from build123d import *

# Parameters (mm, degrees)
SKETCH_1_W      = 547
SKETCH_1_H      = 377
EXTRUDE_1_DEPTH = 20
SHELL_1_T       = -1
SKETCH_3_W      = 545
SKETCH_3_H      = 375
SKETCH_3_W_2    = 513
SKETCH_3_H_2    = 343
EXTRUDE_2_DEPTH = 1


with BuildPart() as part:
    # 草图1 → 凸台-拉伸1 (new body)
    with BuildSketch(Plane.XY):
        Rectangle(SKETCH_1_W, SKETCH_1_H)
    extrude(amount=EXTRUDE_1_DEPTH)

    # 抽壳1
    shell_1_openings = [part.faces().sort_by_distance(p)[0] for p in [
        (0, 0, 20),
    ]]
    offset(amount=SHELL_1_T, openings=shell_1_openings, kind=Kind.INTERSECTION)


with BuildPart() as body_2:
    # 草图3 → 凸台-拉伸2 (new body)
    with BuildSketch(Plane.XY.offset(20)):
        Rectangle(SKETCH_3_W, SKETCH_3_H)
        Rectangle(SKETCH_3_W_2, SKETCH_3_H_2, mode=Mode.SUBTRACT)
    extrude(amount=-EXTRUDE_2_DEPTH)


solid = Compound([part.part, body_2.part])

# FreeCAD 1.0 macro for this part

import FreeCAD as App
import Part
import Sketcher


def faces_at(feature, points):
    """Names of the faces that lie closest to the given points."""
    faces = feature.Shape.Faces
    near = lambda p: min(range(len(faces)), key=lambda i: faces[i].distToShape(Part.Vertex(*p))[0])
    return sorted({f"Face{near(p) + 1}" for p in points})

doc = App.newDocument("Part")
body = doc.addObject("PartDesign::Body", "Body")

# Sketch on XY plane
sketch1 = body.newObject("Sketcher::SketchObject", "Sketch")
sketch1.AttachmentSupport = (doc.getObject("XY_Plane"), [""])
sketch1.MapMode = "FlatFace"
sketch1.addGeometry(Part.LineSegment(App.Vector(-274, 188, 0), App.Vector(-274, -188, 0)), False)
sketch1.addGeometry(Part.LineSegment(App.Vector(-274, -188, 0), App.Vector(274, -188, 0)), False)
sketch1.addGeometry(Part.LineSegment(App.Vector(274, -188, 0), App.Vector(274, 188, 0)), False)
sketch1.addGeometry(Part.LineSegment(App.Vector(274, 188, 0), App.Vector(-274, 188, 0)), False)
sketch1.addConstraint(Sketcher.Constraint("Coincident", 0, 2, 1, 1))
sketch1.addConstraint(Sketcher.Constraint("Coincident", 1, 2, 2, 1))
sketch1.addConstraint(Sketcher.Constraint("Coincident", 2, 2, 3, 1))
sketch1.addConstraint(Sketcher.Constraint("Coincident", 3, 2, 0, 1))
sketch1.addConstraint(Sketcher.Constraint("Vertical", 0))
sketch1.addConstraint(Sketcher.Constraint("Horizontal", 1))
sketch1.addConstraint(Sketcher.Constraint("Vertical", 2))
sketch1.addConstraint(Sketcher.Constraint("Horizontal", 3))
sketch1.addConstraint(Sketcher.Constraint("Symmetric", 0, 2, 2, 2, -1, 1))
sketch1.addConstraint(Sketcher.Constraint("DistanceX", 1, 1, 1, 2, 547.0))
sketch1.addConstraint(Sketcher.Constraint("DistanceY", 0, 2, 0, 1, 377.0))
pad1 = body.newObject("PartDesign::Pad", "Pad")
pad1.Profile = sketch1
pad1.Length = 20
doc.recompute()

thickness = body.newObject("PartDesign::Thickness", "Thickness")
thickness.Base = (pad1, faces_at(pad1, [(0, 0, 20)]))
thickness.Value = 1
thickness.Reversed = True
thickness.Join = "Intersection"
body2 = doc.addObject("PartDesign::Body", "Body001")

# Sketch on XY plane
sketch2 = body2.newObject("Sketcher::SketchObject", "Sketch001")
sketch2.AttachmentSupport = (doc.getObject("XY_Plane001"), [""])
sketch2.MapMode = "FlatFace"
sketch2.AttachmentOffset = App.Placement(App.Vector(0, 0, 20), App.Rotation())
sketch2.addGeometry(Part.LineSegment(App.Vector(-272, 188, 0), App.Vector(-272, -188, 0)), False)
sketch2.addGeometry(Part.LineSegment(App.Vector(-272, -188, 0), App.Vector(272, -188, 0)), False)
sketch2.addGeometry(Part.LineSegment(App.Vector(272, -188, 0), App.Vector(272, 188, 0)), False)
sketch2.addGeometry(Part.LineSegment(App.Vector(272, 188, 0), App.Vector(-272, 188, 0)), False)
sketch2.addGeometry(Part.LineSegment(App.Vector(256, -172, 0), App.Vector(-256, -172, 0)), False)
sketch2.addGeometry(Part.LineSegment(App.Vector(-256, -172, 0), App.Vector(-256, 172, 0)), False)
sketch2.addGeometry(Part.LineSegment(App.Vector(-256, 172, 0), App.Vector(256, 172, 0)), False)
sketch2.addGeometry(Part.LineSegment(App.Vector(256, 172, 0), App.Vector(256, -172, 0)), False)
sketch2.addConstraint(Sketcher.Constraint("Coincident", 0, 2, 1, 1))
sketch2.addConstraint(Sketcher.Constraint("Coincident", 1, 2, 2, 1))
sketch2.addConstraint(Sketcher.Constraint("Coincident", 2, 2, 3, 1))
sketch2.addConstraint(Sketcher.Constraint("Coincident", 3, 2, 0, 1))
sketch2.addConstraint(Sketcher.Constraint("Coincident", 4, 2, 5, 1))
sketch2.addConstraint(Sketcher.Constraint("Coincident", 5, 2, 6, 1))
sketch2.addConstraint(Sketcher.Constraint("Coincident", 6, 2, 7, 1))
sketch2.addConstraint(Sketcher.Constraint("Coincident", 7, 2, 4, 1))
sketch2.addConstraint(Sketcher.Constraint("Vertical", 0))
sketch2.addConstraint(Sketcher.Constraint("Horizontal", 1))
sketch2.addConstraint(Sketcher.Constraint("Vertical", 2))
sketch2.addConstraint(Sketcher.Constraint("Horizontal", 3))
sketch2.addConstraint(Sketcher.Constraint("Horizontal", 4))
sketch2.addConstraint(Sketcher.Constraint("Vertical", 5))
sketch2.addConstraint(Sketcher.Constraint("Horizontal", 6))
sketch2.addConstraint(Sketcher.Constraint("Vertical", 7))
sketch2.addConstraint(Sketcher.Constraint("Symmetric", 0, 2, 2, 2, -1, 1))
sketch2.addConstraint(Sketcher.Constraint("Symmetric", 4, 2, 6, 2, -1, 1))
sketch2.addConstraint(Sketcher.Constraint("DistanceX", 1, 1, 1, 2, 545.0))
sketch2.addConstraint(Sketcher.Constraint("DistanceX", 4, 2, 4, 1, 513.0))
sketch2.addConstraint(Sketcher.Constraint("DistanceY", 0, 2, 0, 1, 375.0))
sketch2.addConstraint(Sketcher.Constraint("DistanceY", 5, 1, 5, 2, 343.0))
pad2 = body2.newObject("PartDesign::Pad", "Pad001")
pad2.Profile = sketch2
pad2.Length = 1
pad2.Reversed = True

doc.recompute()
